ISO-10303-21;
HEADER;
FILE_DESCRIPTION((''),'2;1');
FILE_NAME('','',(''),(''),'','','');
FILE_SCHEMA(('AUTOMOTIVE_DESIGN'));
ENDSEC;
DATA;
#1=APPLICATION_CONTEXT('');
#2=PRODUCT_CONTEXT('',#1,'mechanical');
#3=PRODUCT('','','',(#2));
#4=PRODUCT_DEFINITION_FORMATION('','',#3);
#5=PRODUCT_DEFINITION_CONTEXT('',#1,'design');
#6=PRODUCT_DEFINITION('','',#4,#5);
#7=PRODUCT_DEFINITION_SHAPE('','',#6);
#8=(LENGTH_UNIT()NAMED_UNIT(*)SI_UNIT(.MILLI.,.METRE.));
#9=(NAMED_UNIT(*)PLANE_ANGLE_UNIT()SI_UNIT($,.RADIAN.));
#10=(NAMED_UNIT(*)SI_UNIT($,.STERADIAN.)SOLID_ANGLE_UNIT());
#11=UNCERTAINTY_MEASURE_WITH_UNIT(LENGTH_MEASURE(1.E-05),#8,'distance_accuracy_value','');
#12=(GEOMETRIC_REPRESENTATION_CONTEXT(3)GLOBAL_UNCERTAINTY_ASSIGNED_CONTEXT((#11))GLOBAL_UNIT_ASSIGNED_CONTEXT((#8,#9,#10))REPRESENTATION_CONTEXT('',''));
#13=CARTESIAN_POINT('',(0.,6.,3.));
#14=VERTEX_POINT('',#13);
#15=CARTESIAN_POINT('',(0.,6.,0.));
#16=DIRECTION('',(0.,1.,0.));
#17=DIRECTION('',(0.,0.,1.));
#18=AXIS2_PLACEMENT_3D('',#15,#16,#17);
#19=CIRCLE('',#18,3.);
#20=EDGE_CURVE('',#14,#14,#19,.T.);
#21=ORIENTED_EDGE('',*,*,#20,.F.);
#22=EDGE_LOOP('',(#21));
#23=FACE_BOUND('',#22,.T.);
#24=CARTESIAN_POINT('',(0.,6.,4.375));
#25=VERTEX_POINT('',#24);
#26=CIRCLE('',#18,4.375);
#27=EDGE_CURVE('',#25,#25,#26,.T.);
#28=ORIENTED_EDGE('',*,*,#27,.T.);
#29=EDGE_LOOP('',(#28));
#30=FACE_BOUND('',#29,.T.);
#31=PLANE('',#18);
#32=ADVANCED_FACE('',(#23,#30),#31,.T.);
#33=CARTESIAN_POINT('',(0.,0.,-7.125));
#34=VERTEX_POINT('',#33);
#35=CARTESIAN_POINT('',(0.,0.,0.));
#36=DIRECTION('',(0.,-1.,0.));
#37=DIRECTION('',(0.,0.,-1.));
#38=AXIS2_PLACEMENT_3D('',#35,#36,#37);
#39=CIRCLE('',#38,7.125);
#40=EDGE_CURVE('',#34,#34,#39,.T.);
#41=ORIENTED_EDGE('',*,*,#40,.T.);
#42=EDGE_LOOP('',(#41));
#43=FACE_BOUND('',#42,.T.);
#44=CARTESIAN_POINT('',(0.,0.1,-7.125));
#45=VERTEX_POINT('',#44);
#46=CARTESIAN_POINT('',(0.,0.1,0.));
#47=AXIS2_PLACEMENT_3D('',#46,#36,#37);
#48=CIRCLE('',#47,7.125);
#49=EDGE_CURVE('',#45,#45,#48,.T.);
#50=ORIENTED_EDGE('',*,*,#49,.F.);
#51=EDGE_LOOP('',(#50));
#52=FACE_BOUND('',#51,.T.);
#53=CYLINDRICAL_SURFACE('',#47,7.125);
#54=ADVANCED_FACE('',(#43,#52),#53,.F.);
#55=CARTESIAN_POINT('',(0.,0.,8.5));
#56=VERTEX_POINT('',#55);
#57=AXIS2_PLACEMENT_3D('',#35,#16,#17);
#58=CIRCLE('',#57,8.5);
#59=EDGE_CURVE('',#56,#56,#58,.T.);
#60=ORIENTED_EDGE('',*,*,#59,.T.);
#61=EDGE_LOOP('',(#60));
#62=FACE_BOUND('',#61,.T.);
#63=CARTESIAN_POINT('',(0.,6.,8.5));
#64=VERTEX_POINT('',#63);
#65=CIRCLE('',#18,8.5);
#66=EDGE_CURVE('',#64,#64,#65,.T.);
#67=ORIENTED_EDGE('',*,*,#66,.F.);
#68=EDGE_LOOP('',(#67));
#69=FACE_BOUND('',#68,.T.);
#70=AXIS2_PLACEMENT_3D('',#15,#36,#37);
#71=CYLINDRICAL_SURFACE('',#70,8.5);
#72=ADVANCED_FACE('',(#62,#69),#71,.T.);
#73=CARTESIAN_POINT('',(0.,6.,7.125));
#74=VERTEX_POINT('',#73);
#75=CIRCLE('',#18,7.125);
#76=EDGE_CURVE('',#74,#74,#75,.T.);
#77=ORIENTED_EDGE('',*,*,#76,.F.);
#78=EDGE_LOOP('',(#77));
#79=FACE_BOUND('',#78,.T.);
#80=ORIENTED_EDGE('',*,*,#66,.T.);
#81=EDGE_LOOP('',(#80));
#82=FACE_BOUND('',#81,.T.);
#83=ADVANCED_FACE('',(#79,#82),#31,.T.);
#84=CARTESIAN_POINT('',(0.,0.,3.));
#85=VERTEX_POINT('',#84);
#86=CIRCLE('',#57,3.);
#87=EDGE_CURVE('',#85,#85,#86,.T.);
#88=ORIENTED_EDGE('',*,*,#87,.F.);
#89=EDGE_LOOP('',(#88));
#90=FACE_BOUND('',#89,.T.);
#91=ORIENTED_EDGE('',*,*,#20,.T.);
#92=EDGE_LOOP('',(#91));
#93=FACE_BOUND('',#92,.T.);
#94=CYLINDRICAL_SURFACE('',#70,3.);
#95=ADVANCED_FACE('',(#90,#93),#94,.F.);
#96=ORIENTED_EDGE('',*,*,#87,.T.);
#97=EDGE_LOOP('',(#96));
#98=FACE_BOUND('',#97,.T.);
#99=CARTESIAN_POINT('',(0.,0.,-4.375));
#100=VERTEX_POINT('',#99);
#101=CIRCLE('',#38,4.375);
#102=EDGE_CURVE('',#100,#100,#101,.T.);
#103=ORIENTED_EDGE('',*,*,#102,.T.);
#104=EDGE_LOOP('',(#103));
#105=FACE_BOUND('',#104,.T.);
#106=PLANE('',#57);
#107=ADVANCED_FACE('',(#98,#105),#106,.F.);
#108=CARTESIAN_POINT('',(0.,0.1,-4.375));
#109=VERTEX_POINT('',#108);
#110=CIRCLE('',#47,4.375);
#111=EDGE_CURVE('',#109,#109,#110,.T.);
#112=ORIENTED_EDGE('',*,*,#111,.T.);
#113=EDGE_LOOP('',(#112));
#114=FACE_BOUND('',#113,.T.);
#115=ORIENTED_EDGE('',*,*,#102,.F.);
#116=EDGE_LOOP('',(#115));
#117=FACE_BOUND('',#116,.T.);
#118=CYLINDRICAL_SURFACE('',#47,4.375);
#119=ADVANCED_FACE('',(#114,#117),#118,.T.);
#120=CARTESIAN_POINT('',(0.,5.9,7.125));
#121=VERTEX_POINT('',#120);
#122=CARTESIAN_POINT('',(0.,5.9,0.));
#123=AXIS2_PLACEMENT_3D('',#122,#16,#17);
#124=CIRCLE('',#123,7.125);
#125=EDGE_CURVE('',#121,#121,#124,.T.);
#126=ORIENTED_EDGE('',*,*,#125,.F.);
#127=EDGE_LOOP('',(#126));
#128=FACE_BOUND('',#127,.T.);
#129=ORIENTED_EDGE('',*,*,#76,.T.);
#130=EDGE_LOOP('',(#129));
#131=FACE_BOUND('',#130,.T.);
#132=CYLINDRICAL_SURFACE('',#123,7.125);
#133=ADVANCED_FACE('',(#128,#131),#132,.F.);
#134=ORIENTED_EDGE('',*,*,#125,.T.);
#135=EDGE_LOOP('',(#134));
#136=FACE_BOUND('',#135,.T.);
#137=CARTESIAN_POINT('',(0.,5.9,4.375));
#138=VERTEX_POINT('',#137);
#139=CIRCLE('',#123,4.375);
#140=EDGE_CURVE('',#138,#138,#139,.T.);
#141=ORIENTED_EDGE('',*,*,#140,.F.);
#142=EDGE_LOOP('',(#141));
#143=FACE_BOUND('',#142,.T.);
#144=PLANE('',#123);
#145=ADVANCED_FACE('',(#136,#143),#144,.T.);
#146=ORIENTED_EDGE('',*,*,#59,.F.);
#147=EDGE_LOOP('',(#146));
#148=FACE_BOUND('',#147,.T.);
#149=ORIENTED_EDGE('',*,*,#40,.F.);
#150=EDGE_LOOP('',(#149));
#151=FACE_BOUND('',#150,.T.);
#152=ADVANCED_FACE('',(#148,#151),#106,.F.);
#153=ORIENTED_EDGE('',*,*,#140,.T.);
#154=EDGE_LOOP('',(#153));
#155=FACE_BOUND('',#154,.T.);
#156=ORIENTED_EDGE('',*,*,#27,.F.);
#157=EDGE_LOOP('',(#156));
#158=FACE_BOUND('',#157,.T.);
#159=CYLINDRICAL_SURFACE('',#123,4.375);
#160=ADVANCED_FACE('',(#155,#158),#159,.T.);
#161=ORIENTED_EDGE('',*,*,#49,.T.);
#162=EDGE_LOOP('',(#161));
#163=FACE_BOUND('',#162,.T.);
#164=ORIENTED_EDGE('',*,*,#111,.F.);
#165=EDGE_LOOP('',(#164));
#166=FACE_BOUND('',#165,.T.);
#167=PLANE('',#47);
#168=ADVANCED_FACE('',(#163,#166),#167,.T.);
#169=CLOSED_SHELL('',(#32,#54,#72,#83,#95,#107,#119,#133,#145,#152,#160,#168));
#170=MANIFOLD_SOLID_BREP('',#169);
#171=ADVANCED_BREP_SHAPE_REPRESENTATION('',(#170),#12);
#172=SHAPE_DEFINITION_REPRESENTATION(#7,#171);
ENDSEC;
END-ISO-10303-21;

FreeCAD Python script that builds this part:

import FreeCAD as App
import Part
import Sketcher

V = App.Vector
Q = App.Units.Quantity

doc = App.newDocument("Part")
body = doc.addObject("PartDesign::Body", "Body")

# Sketch on XZ plane
sketch1 = doc.addObject("Sketcher::SketchObject", "Sketch")
body.addObject(sketch1)
sketch1.AttachmentSupport = (doc.XZ_Plane, [""])
sketch1.MapMode = "FlatFace"
sketch1.addGeometry([
    Part.Circle(V(0, 0, 0), V(0, 0, 1), 8.5),
    Part.Circle(V(0, 0, 0), V(0, 0, 1), 3),
], False)
sketch1.addConstraint([
    Sketcher.Constraint("Coincident", 0, 3, -1, 1),
    Sketcher.Constraint("Coincident", 1, 3, -1, 1),
    Sketcher.Constraint("Diameter", 0, Q("17 mm")),
    Sketcher.Constraint("Diameter", 1, Q("6 mm")),
])
pad1 = doc.addObject("PartDesign::Pad", "Pad")
body.addObject(pad1)
pad1.Profile = sketch1
pad1.Length = 6
pad1.Reversed = True

# Sketch on XZ plane
sketch2 = doc.addObject("Sketcher::SketchObject", "Sketch001")
body.addObject(sketch2)
sketch2.AttachmentSupport = (doc.XZ_Plane, [""])
sketch2.MapMode = "FlatFace"
sketch2.AttachmentOffset = App.Placement(V(0, 0, -6), App.Rotation())
sketch2.addGeometry([
    Part.Circle(V(0, 0, 0), V(0, 0, 1), 7.1),
    Part.Circle(V(0, 0, 0), V(0, 0, 1), 4.4),
], False)
sketch2.addConstraint([
    Sketcher.Constraint("Coincident", 0, 3, -1, 1),
    Sketcher.Constraint("Coincident", 1, 3, -1, 1),
    Sketcher.Constraint("Diameter", 0, Q("14.25 mm")),
    Sketcher.Constraint("Diameter", 1, Q("8.75 mm")),
])
pocket1 = doc.addObject("PartDesign::Pocket", "Pocket")
body.addObject(pocket1)
pocket1.Profile = sketch2
pocket1.Length = 0.1
pocket1.Reversed = True

# Sketch on XZ plane
sketch3 = doc.addObject("Sketcher::SketchObject", "Sketch002")
body.addObject(sketch3)
sketch3.AttachmentSupport = (doc.XZ_Plane, [""])
sketch3.MapMode = "FlatFace"
sketch3.AttachmentOffset = App.Placement(V(0, 0, -0.1), App.Rotation())
sketch3.addGeometry([
    Part.Circle(V(0, 0, 0), V(0, 0, 1), 7.1),
    Part.Circle(V(0, 0, 0), V(0, 0, 1), 4.4),
], False)
sketch3.addConstraint([
    Sketcher.Constraint("Coincident", 0, 3, -1, 1),
    Sketcher.Constraint("Coincident", 1, 3, -1, 1),
    Sketcher.Constraint("Diameter", 0, Q("14.25 mm")),
    Sketcher.Constraint("Diameter", 1, Q("8.75 mm")),
])
pocket2 = doc.addObject("PartDesign::Pocket", "Pocket001")
body.addObject(pocket2)
pocket2.Profile = sketch3
pocket2.Length = 0.1
pocket2.Reversed = True

doc.recompute()
